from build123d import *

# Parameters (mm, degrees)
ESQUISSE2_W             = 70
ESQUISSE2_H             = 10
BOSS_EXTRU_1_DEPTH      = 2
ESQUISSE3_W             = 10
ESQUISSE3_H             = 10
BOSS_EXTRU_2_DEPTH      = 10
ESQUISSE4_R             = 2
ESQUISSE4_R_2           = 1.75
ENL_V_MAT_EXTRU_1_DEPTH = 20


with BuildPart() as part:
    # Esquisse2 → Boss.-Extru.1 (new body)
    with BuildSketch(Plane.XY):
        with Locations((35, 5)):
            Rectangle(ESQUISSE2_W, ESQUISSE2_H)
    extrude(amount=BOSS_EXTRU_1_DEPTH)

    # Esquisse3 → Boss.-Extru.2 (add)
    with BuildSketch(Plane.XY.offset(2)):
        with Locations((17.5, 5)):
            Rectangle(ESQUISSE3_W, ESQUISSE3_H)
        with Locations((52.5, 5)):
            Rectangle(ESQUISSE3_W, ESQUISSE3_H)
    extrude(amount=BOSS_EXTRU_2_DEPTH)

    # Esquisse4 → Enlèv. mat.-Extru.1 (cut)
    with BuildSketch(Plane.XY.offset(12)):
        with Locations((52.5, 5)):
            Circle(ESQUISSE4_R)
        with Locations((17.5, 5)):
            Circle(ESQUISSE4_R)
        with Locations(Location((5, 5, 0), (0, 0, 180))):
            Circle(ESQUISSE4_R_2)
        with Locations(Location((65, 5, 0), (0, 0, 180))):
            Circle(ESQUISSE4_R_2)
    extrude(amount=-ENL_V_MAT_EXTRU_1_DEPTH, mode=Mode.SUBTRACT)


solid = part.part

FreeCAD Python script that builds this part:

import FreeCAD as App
import Part
import Sketcher
from FreeCAD import Vector


def add_polygon(sketch, points):
    """Adds a closed chain of lines whose ends are joined by coincident constraints."""
    first, n = sketch.GeometryCount, len(points)
    for a, b in zip(points, points[1:] + points[:1]):
        sketch.addGeometry(Part.LineSegment(App.Vector(*a, 0), App.Vector(*b, 0)), False)
    for i in range(n):
        sketch.addConstraint(Sketcher.Constraint("Coincident", first + i, 2, first + (i + 1) % n, 1))

doc = App.newDocument("Part")
body = doc.addObject("PartDesign::Body", "Body")

sketch1 = body.newObject("Sketcher::SketchObject", "Sketch")
sketch1.AttachmentSupport = (doc.getObject("XY_Plane"), [""])
sketch1.MapMode = "FlatFace"
add_polygon(sketch1, [(0, 10), (0, 0), (70, 0), (70, 10)])
sketch1.addConstraint([
    Sketcher.Constraint("Vertical", 0),
    Sketcher.Constraint("Horizontal", 1),
    Sketcher.Constraint("Vertical", 2),
    Sketcher.Constraint("Horizontal", 3),
    Sketcher.Constraint("Coincident", 0, 2, -1, 1),
    Sketcher.Constraint("DistanceX", 1, 1, 1, 2, 70.0),
    Sketcher.Constraint("DistanceY", 0, 2, 0, 1, 10.0),
])
pad1 = body.newObject("PartDesign::Pad", "Pad")
pad1.Profile = sketch1
pad1.Length = 2

sketch2 = body.newObject("Sketcher::SketchObject", "Sketch001")
sketch2.AttachmentSupport = (doc.getObject("XY_Plane"), [""])
sketch2.MapMode = "FlatFace"
sketch2.AttachmentOffset = App.Placement(Vector(0, 0, 2), App.Rotation())
add_polygon(sketch2, [(12, 10), (12, 0), (22, 0), (22, 10)])
add_polygon(sketch2, [(48, 10), (48, 0), (58, 0), (58, 10)])
sketch2.addConstraint([
    Sketcher.Constraint("Vertical", 0),
    Sketcher.Constraint("Horizontal", 1),
    Sketcher.Constraint("Vertical", 2),
    Sketcher.Constraint("Horizontal", 3),
    Sketcher.Constraint("Vertical", 4),
    Sketcher.Constraint("Horizontal", 5),
    Sketcher.Constraint("Vertical", 6),
    Sketcher.Constraint("Horizontal", 7),
    Sketcher.Constraint("PointOnObject", 0, 2, -1),
    Sketcher.Constraint("PointOnObject", 4, 2, -1),
    Sketcher.Constraint("Horizontal", 3, 2, 6, 2),
    Sketcher.Constraint("Equal", 3, 5),
    Sketcher.Constraint("Equal", 7, 0),
    Sketcher.Constraint("DistanceX", 1, 1, 1, 2, 10.0),
    Sketcher.Constraint("DistanceX", 1, 2, 4, 2, 25.0),
    Sketcher.Constraint("DistanceX", -1, 1, 0, 2, 12.5),
])
pad2 = body.newObject("PartDesign::Pad", "Pad001")
pad2.Profile = sketch2
pad2.Length = 10

sketch3 = body.newObject("Sketcher::SketchObject", "Sketch002")
sketch3.AttachmentSupport = (doc.getObject("XY_Plane"), [""])
sketch3.MapMode = "FlatFace"
sketch3.AttachmentOffset = App.Placement(Vector(0, 0, 12), App.Rotation())
sketch3.addGeometry([
    Part.Circle(Vector(52.5, 5, 0), Vector(0, 0, 1), 2),
    Part.Circle(Vector(17.5, 5, 0), Vector(0, 0, 1), 2),
    Part.Circle(Vector(5, 5, 0), Vector(0, 0, 1), 1.8),
    Part.Circle(Vector(65, 5, 0), Vector(0, 0, 1), 1.8),
], False)
sketch3.addConstraint([
    Sketcher.Constraint("Equal", 0, 1),
    Sketcher.Constraint("Equal", 2, 3),
    Sketcher.Constraint("Horizontal", 0, 3, 1, 3),
    Sketcher.Constraint("Horizontal", 1, 3, 2, 3),
    Sketcher.Constraint("Horizontal", 2, 3, 3, 3),
    Sketcher.Constraint("Diameter", 0, 4.0),
    Sketcher.Constraint("Diameter", 2, 3.5),
    Sketcher.Constraint("DistanceY", -1, 1, 0, 3, 5.0),
    Sketcher.Constraint("DistanceX", -1, 1, 2, 3, 5.0),
    Sketcher.Constraint("DistanceX", -1, 1, 3, 3, 65.0),
    Sketcher.Constraint("DistanceX", 1, 3, 0, 3, 35.0),
    Sketcher.Constraint("DistanceX", -1, 1, 0, 3, 52.5),
])
pocket1 = body.newObject("PartDesign::Pocket", "Pocket")
pocket1.Profile = sketch3
pocket1.Length = 20

doc.recompute()
